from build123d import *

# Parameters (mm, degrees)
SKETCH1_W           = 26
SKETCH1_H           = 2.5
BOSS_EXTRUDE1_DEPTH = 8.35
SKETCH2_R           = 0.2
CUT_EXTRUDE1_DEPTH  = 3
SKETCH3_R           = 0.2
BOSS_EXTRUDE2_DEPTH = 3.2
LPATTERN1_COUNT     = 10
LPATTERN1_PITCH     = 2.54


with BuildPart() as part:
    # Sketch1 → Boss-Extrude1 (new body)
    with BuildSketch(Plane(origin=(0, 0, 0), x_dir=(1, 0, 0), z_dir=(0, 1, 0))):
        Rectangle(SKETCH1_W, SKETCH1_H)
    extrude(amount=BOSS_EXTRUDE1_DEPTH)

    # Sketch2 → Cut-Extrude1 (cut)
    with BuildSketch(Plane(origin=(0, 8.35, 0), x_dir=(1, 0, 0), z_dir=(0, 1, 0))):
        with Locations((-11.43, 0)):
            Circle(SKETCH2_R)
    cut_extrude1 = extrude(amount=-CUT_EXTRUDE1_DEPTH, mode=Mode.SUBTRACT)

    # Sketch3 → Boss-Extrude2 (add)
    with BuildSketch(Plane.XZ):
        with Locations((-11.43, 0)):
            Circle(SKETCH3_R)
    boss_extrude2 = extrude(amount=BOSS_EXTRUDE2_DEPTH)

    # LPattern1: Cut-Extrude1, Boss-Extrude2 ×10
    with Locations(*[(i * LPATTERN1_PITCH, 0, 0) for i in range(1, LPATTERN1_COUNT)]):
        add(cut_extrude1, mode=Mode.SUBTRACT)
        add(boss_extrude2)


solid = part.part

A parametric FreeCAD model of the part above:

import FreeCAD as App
import Part
import Sketcher

V = App.Vector

doc = App.newDocument("Part")
params = doc.addObject("Spreadsheet::Sheet", "Params")
for row, (alias, value) in enumerate([
    ("sketch1_width", "26 mm"),
    ("sketch1_height", "2.5 mm"),
    ("pad1_length", "8.35 mm"),
    ("sketch2_diameter", "0.4 mm"),
    ("pocket1_length", "3 mm"),
    ("sketch3_diameter", "0.4 mm"),
    ("pad2_length", "3.2 mm"),
    ("linearpattern_pitch", "2.54 mm"),
], start=1):
    params.set(f"A{row}", alias)
    params.set(f"B{row}", "=" + value)
    params.setAlias(f"B{row}", alias)

body = doc.addObject("PartDesign::Body", "Body")

# Sketch on XZ plane
sketch1 = doc.addObject("Sketcher::SketchObject", "Sketch")
body.addObject(sketch1)
sketch1.AttachmentSupport = (doc.XZ_Plane, [""])
sketch1.MapMode = "FlatFace"
sketch1.addGeometry([
    Part.LineSegment(V(-13, -1.2, 0), V(-13, 1.2, 0)),
    Part.LineSegment(V(-13, 1.2, 0), V(13, 1.2, 0)),
    Part.LineSegment(V(13, 1.2, 0), V(13, -1.2, 0)),
    Part.LineSegment(V(13, -1.2, 0), V(-13, -1.2, 0)),
], False)
sketch1.addConstraint([
    Sketcher.Constraint("Coincident", 0, 2, 1, 1),
    Sketcher.Constraint("Coincident", 1, 2, 2, 1),
    Sketcher.Constraint("Coincident", 2, 2, 3, 1),
    Sketcher.Constraint("Coincident", 3, 2, 0, 1),
    Sketcher.Constraint("Vertical", 0),
    Sketcher.Constraint("Horizontal", 1),
    Sketcher.Constraint("Vertical", 2),
    Sketcher.Constraint("Horizontal", 3),
    Sketcher.Constraint("Symmetric", 0, 2, 2, 2, -1, 1),
    Sketcher.Constraint("DistanceX", 1, 1, 1, 2, 26.0),
    Sketcher.Constraint("DistanceY", 0, 1, 0, 2, 2.5),
])
sketch1.setExpression("Constraints[9]", "Params.sketch1_width")
sketch1.setExpression("Constraints[10]", "Params.sketch1_height")
pad1 = doc.addObject("PartDesign::Pad", "Pad")
body.addObject(pad1)
pad1.Profile = sketch1
pad1.setExpression("Length", "Params.pad1_length")
pad1.Reversed = True

# Sketch on XZ plane
sketch2 = doc.addObject("Sketcher::SketchObject", "Sketch001")
body.addObject(sketch2)
sketch2.AttachmentSupport = (doc.XZ_Plane, [""])
sketch2.MapMode = "FlatFace"
sketch2.AttachmentOffset = App.Placement(V(0, 0, -8.35), App.Rotation())
sketch2.addGeometry(Part.Circle(V(-11.43, 0, 0), V(0, 0, 1), 0.2), False)
sketch2.addConstraint([
    Sketcher.Constraint("PointOnObject", 0, 3, -1),
    Sketcher.Constraint("Diameter", 0, 0.4),
    Sketcher.Constraint("DistanceX", 0, 3, -1, 1, 11.43),
])
sketch2.setExpression("Constraints[1]", "Params.sketch2_diameter")
pocket1 = doc.addObject("PartDesign::Pocket", "Pocket")
body.addObject(pocket1)
pocket1.Profile = sketch2
pocket1.setExpression("Length", "Params.pocket1_length")
pocket1.Reversed = True

# Sketch on XZ plane
sketch3 = doc.addObject("Sketcher::SketchObject", "Sketch002")
body.addObject(sketch3)
sketch3.AttachmentSupport = (doc.XZ_Plane, [""])
sketch3.MapMode = "FlatFace"
sketch3.addGeometry(Part.Circle(V(-11.43, 0, 0), V(0, 0, 1), 0.2), False)
sketch3.addConstraint([
    Sketcher.Constraint("PointOnObject", 0, 3, -1),
    Sketcher.Constraint("Diameter", 0, 0.4),
    Sketcher.Constraint("DistanceX", 0, 3, -1, 1, 11.43),
])
sketch3.setExpression("Constraints[1]", "Params.sketch3_diameter")
pad2 = doc.addObject("PartDesign::Pad", "Pad001")
body.addObject(pad2)
pad2.Profile = sketch3
pad2.setExpression("Length", "Params.pad2_length")
doc.recompute()

linearpattern = doc.addObject("PartDesign::LinearPattern", "LinearPattern")
body.addObject(linearpattern)
linearpattern.Originals = [pocket1, pad2]
linearpattern.Direction = (doc.X_Axis, [""])
linearpattern.Mode = "offset"
linearpattern.setExpression("Offset", "Params.linearpattern_pitch")
linearpattern.Occurrences = 10
body.Tip = linearpattern

doc.recompute()
